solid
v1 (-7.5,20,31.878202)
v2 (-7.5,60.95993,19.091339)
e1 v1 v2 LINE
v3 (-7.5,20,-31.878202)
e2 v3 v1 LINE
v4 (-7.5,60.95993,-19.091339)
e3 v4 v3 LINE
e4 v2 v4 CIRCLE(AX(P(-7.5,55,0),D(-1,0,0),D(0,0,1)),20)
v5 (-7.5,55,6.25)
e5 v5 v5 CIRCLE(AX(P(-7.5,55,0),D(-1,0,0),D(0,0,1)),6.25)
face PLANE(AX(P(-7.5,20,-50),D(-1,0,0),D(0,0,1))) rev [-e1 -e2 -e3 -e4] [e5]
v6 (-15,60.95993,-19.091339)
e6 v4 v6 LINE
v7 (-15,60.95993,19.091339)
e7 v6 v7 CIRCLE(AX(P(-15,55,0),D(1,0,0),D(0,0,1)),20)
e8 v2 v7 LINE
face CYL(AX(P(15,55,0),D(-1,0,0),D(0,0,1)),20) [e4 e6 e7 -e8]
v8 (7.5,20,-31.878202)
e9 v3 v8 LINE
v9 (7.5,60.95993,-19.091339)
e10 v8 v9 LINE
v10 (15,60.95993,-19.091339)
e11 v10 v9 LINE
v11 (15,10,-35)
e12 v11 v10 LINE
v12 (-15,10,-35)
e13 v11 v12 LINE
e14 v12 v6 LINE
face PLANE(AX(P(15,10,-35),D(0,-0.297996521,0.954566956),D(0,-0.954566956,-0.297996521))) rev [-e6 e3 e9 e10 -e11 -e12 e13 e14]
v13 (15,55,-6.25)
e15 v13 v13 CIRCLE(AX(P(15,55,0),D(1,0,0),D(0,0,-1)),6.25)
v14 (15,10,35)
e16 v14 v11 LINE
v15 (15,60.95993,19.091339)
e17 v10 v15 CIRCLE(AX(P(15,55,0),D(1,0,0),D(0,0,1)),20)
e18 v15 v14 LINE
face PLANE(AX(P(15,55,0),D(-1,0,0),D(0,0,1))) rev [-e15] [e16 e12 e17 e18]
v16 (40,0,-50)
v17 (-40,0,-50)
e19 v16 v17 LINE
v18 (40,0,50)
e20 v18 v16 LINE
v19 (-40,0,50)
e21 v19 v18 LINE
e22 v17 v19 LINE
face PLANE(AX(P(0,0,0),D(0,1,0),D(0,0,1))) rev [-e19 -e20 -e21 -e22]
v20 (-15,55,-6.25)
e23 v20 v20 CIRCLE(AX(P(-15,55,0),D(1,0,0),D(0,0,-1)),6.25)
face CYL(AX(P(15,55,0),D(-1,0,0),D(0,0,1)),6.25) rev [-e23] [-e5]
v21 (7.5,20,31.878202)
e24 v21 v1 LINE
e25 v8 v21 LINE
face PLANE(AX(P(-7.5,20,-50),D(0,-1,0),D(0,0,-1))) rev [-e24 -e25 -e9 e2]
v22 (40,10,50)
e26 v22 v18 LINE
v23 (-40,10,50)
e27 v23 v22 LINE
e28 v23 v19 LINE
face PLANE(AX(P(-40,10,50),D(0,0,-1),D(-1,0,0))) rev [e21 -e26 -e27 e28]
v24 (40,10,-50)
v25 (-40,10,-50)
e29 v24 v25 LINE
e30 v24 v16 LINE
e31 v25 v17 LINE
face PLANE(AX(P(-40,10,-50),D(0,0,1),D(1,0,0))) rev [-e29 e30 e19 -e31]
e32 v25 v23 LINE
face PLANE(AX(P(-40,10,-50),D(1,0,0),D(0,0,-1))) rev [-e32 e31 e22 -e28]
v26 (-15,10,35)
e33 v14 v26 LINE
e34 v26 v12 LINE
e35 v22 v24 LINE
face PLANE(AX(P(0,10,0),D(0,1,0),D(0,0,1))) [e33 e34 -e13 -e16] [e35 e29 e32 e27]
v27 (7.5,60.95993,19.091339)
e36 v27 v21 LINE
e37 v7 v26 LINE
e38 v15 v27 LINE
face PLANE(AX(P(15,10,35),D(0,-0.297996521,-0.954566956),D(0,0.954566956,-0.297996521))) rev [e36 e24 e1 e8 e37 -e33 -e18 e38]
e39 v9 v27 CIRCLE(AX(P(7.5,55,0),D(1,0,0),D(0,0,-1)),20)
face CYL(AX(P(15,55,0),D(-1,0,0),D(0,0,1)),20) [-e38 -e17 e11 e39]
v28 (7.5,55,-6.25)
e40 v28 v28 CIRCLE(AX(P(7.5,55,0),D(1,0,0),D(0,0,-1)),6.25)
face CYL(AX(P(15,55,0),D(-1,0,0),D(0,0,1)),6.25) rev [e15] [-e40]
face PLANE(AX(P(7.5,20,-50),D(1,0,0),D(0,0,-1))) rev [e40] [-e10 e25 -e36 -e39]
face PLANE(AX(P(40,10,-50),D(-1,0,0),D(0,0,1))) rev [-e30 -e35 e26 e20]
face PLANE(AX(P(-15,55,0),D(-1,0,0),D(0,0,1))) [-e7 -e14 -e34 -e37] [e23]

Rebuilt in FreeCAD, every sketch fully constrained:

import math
import FreeCAD as App
import Part
import Sketcher
from FreeCAD import Vector


def add_polygon(sketch, points):
    """Adds a closed chain of lines whose ends are joined by coincident constraints."""
    first, n = sketch.GeometryCount, len(points)
    for a, b in zip(points, points[1:] + points[:1]):
        sketch.addGeometry(Part.LineSegment(App.Vector(*a, 0), App.Vector(*b, 0)), False)
    for i in range(n):
        sketch.addConstraint(Sketcher.Constraint("Coincident", first + i, 2, first + (i + 1) % n, 1))

doc = App.newDocument("Part")
body = doc.addObject("PartDesign::Body", "Body")

sketch1 = doc.addObject("Sketcher::SketchObject", "Sketch")
body.addObject(sketch1)
sketch1.AttachmentSupport = (doc.XZ_Plane, [""])
sketch1.MapMode = "FlatFace"
add_polygon(sketch1, [(-40, -50), (-40, 50), (40, 50), (40, -50)])
sketch1.addConstraint([
    Sketcher.Constraint("Vertical", 0),
    Sketcher.Constraint("Horizontal", 1),
    Sketcher.Constraint("Vertical", 2),
    Sketcher.Constraint("Horizontal", 3),
    Sketcher.Constraint("Symmetric", 0, 2, 2, 2, -1, 1),
    Sketcher.Constraint("DistanceX", 1, 1, 1, 2, 80.0),
    Sketcher.Constraint("DistanceY", 0, 1, 0, 2, 100.0),
])
pad1 = doc.addObject("PartDesign::Pad", "Pad")
body.addObject(pad1)
pad1.Profile = sketch1
pad1.Length = 10
pad1.Reversed = True

sketch2 = doc.addObject("Sketcher::SketchObject", "Sketch001")
body.addObject(sketch2)
sketch2.AttachmentSupport = (doc.YZ_Plane, [""])
sketch2.MapMode = "FlatFace"
sketch2.addGeometry([
    Part.LineSegment(Vector(61, 19, 0), Vector(10, 35, 0)),
    Part.LineSegment(Vector(10, 35, 0), Vector(10, -35, 0)),
    Part.LineSegment(Vector(10, -35, 0), Vector(61, -19, 0)),
    Part.ArcOfCircle(Part.Circle(Vector(55, 0, 0), Vector(0, 0, 1), 20), math.radians(-73), math.radians(73)),
    Part.Circle(Vector(55, 0, 0), Vector(0, 0, 1), 6),
], False)
sketch2.addConstraint([
    Sketcher.Constraint("Coincident", 0, 2, 1, 1),
    Sketcher.Constraint("Coincident", 1, 2, 2, 1),
    Sketcher.Constraint("Tangent", 2, 2, 3, 1),
    Sketcher.Constraint("Tangent", 3, 2, 0, 1),
    Sketcher.Constraint("Vertical", 1),
    Sketcher.Constraint("Coincident", 4, 3, 3, 3),
    Sketcher.Constraint("Symmetric", 2, 2, 3, 2, -1),
    Sketcher.Constraint("Radius", 3, 20.0),
    Sketcher.Constraint("Diameter", 4, 12.5),
    Sketcher.Constraint("DistanceY", 1, 2, 1, 1, 70.0),
    Sketcher.Constraint("DistanceX", -1, 1, 3, 3, 55.0),
    Sketcher.Constraint("DistanceX", -1, 1, 0, 2, 10.0),
])
pad2 = doc.addObject("PartDesign::Pad", "Pad001")
body.addObject(pad2)
pad2.Profile = sketch2
pad2.Length = 30
pad2.Midplane = True

sketch3 = doc.addObject("Sketcher::SketchObject", "Sketch002")
body.addObject(sketch3)
sketch3.AttachmentSupport = (doc.XY_Plane, [""])
sketch3.MapMode = "FlatFace"
add_polygon(sketch3, [(-8, 75), (-8, 20), (8, 20), (8, 75)])
sketch3.addConstraint([
    Sketcher.Constraint("Vertical", 0),
    Sketcher.Constraint("Horizontal", 1),
    Sketcher.Constraint("Vertical", 2),
    Sketcher.Constraint("Horizontal", 3),
    Sketcher.Constraint("DistanceX", 1, 1, 1, 2, 15.0),
    Sketcher.Constraint("DistanceY", 0, 2, 0, 1, 55.0),
    Sketcher.Constraint("DistanceY", -1, 1, 0, 2, 20.0),
    Sketcher.Constraint("DistanceX", 0, 2, -1, 1, 7.5),
])
pocket1 = doc.addObject("PartDesign::Pocket", "Pocket")
body.addObject(pocket1)
pocket1.Profile = sketch3
pocket1.Type = "ThroughAll"
pocket1.Midplane = True

doc.recompute()
